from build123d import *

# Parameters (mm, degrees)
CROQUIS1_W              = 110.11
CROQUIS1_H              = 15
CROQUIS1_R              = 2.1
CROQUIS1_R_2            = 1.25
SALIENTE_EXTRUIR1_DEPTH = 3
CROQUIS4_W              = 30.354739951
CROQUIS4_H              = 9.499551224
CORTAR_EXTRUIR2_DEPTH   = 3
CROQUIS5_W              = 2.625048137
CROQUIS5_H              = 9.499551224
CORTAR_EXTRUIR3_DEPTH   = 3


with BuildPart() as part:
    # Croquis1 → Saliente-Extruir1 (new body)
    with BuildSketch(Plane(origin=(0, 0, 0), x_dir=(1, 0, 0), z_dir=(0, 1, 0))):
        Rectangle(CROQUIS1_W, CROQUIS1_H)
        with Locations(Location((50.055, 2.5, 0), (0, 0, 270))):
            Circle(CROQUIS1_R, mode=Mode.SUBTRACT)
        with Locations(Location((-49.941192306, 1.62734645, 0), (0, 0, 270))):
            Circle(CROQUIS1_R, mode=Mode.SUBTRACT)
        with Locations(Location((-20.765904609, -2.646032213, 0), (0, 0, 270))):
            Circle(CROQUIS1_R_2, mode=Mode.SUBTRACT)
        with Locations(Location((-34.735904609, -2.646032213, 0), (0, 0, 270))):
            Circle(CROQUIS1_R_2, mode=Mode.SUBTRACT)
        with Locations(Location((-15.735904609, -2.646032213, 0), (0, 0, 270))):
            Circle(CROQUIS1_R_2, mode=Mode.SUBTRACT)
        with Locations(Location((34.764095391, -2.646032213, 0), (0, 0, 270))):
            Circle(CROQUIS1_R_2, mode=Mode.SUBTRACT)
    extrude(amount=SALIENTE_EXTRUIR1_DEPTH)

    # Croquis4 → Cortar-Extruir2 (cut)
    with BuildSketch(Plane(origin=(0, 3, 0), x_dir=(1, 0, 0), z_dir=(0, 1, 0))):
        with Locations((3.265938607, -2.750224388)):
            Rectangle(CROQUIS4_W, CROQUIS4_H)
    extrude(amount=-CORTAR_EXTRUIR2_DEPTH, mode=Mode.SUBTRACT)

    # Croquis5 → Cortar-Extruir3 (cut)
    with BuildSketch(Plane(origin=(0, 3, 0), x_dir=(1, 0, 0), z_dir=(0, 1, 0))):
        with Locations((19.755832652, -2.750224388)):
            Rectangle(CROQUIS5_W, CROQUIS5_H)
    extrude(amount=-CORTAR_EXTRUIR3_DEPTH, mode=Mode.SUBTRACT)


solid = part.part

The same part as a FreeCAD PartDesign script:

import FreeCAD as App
import Part
import Sketcher

V = App.Vector

doc = App.newDocument("Part")
params = doc.addObject("Spreadsheet::Sheet", "Params")
for row, (alias, value) in enumerate([
    ("sketch1_diameter", "2.5 mm"),
    ("sketch1_diameter2", "4.2 mm"),
    ("sketch1_height", "15 mm"),
    ("sketch1_width", "110.11 mm"),
    ("pad1_length", "3 mm"),
    ("pocket1_length", "3 mm"),
    ("pocket2_length", "3 mm"),
], start=1):
    params.set(f"A{row}", alias)
    params.set(f"B{row}", "=" + value)
    params.setAlias(f"B{row}", alias)

body = doc.addObject("PartDesign::Body", "Body")

sketch1 = body.newObject("Sketcher::SketchObject", "Sketch")
sketch1.AttachmentSupport = (doc.getObject("XZ_Plane"), [""])
sketch1.MapMode = "FlatFace"
sketch1.addGeometry(Part.LineSegment(V(-55.1, -7.5, 0), V(-55.1, 7.5, 0)), False)
sketch1.addGeometry(Part.LineSegment(V(-55.1, 7.5, 0), V(55.1, 7.5, 0)), False)
sketch1.addGeometry(Part.LineSegment(V(55.1, 7.5, 0), V(55.1, -7.5, 0)), False)
sketch1.addGeometry(Part.LineSegment(V(55.1, -7.5, 0), V(-55.1, -7.5, 0)), False)
sketch1.addGeometry(Part.Circle(V(-34.7, 2.6, 0), V(0, 0, 1), 1.2), False)
sketch1.addGeometry(Part.Circle(V(-20.8, 2.6, 0), V(0, 0, 1), 1.2), False)
sketch1.addGeometry(Part.Circle(V(-15.7, 2.6, 0), V(0, 0, 1), 1.2), False)
sketch1.addGeometry(Part.Circle(V(34.8, 2.6, 0), V(0, 0, 1), 1.2), False)
sketch1.addGeometry(Part.Circle(V(-49.9, -1.6, 0), V(0, 0, 1), 2.1), False)
sketch1.addGeometry(Part.Circle(V(50.1, -2.5, 0), V(0, 0, 1), 2.1), False)
sketch1.addConstraint(Sketcher.Constraint("Coincident", 0, 2, 1, 1))
sketch1.addConstraint(Sketcher.Constraint("Coincident", 1, 2, 2, 1))
sketch1.addConstraint(Sketcher.Constraint("Coincident", 2, 2, 3, 1))
sketch1.addConstraint(Sketcher.Constraint("Coincident", 3, 2, 0, 1))
sketch1.addConstraint(Sketcher.Constraint("Vertical", 0))
sketch1.addConstraint(Sketcher.Constraint("Horizontal", 1))
sketch1.addConstraint(Sketcher.Constraint("Vertical", 2))
sketch1.addConstraint(Sketcher.Constraint("Horizontal", 3))
sketch1.addConstraint(Sketcher.Constraint("Equal", 4, 5))
sketch1.addConstraint(Sketcher.Constraint("Equal", 5, 6))
sketch1.addConstraint(Sketcher.Constraint("Equal", 6, 7))
sketch1.addConstraint(Sketcher.Constraint("Equal", 8, 9))
sketch1.addConstraint(Sketcher.Constraint("Symmetric", 0, 2, 2, 2, -1, 1))
sketch1.addConstraint(Sketcher.Constraint("Horizontal", 4, 3, 5, 3))
sketch1.addConstraint(Sketcher.Constraint("Horizontal", 5, 3, 6, 3))
sketch1.addConstraint(Sketcher.Constraint("Horizontal", 6, 3, 7, 3))
sketch1.addConstraint(Sketcher.Constraint("Diameter", 4, 2.5))
sketch1.addConstraint(Sketcher.Constraint("Diameter", 8, 4.2))
sketch1.addConstraint(Sketcher.Constraint("DistanceY", 0, 1, 0, 2, 15.0))
sketch1.addConstraint(Sketcher.Constraint("DistanceX", 4, 3, 6, 3, 19.0))
sketch1.addConstraint(Sketcher.Constraint("DistanceX", 9, 3, 1, 2, 5.0))
sketch1.addConstraint(Sketcher.Constraint("DistanceY", 9, 3, 1, 2, 10.0))
sketch1.addConstraint(Sketcher.Constraint("DistanceX", 1, 1, 1, 2, 110.11))
sketch1.addConstraint(Sketcher.Constraint("DistanceX", 6, 3, 7, 3, 50.5))
sketch1.addConstraint(Sketcher.Constraint("DistanceX", 4, 3, 5, 3, 13.97))
sketch1.addConstraint(Sketcher.Constraint("DistanceY", 8, 3, 4, 3, 4.273379))
sketch1.addConstraint(Sketcher.Constraint("DistanceX", 4, 3, -1, 1, 34.735905))
sketch1.addConstraint(Sketcher.Constraint("DistanceY", -1, 1, 4, 3, 2.646032))
sketch1.addConstraint(Sketcher.Constraint("DistanceX", 8, 3, -1, 1, 49.941192))
sketch1.setExpression("Constraints[16]", "Params.sketch1_diameter")
sketch1.setExpression("Constraints[17]", "Params.sketch1_diameter2")
sketch1.setExpression("Constraints[18]", "Params.sketch1_height")
sketch1.setExpression("Constraints[22]", "Params.sketch1_width")
pad1 = body.newObject("PartDesign::Pad", "Pad")
pad1.Profile = sketch1
pad1.setExpression("Length", "Params.pad1_length")
pad1.Reversed = True

sketch2 = body.newObject("Sketcher::SketchObject", "Sketch001")
sketch2.AttachmentSupport = (doc.getObject("XZ_Plane"), [""])
sketch2.MapMode = "FlatFace"
sketch2.AttachmentOffset = App.Placement(V(0, 0, -3), App.Rotation())
sketch2.addGeometry(Part.LineSegment(V(-12, -2, 0), V(-12, 8, 0)), False)
sketch2.addGeometry(Part.LineSegment(V(-12, 8, 0), V(18, 8, 0)), False)
sketch2.addGeometry(Part.LineSegment(V(18, 8, 0), V(18, -2, 0)), False)
sketch2.addGeometry(Part.LineSegment(V(18, -2, 0), V(-12, -2, 0)), False)
sketch2.addConstraint(Sketcher.Constraint("Coincident", 0, 2, 1, 1))
sketch2.addConstraint(Sketcher.Constraint("Coincident", 1, 2, 2, 1))
sketch2.addConstraint(Sketcher.Constraint("Coincident", 2, 2, 3, 1))
sketch2.addConstraint(Sketcher.Constraint("Coincident", 3, 2, 0, 1))
sketch2.addConstraint(Sketcher.Constraint("Vertical", 0))
sketch2.addConstraint(Sketcher.Constraint("Horizontal", 1))
sketch2.addConstraint(Sketcher.Constraint("Vertical", 2))
sketch2.addConstraint(Sketcher.Constraint("Horizontal", 3))
sketch2.addConstraint(Sketcher.Constraint("DistanceY", -1, 1, 0, 2, 7.5))
sketch2.addConstraint(Sketcher.Constraint("DistanceX", 1, 1, 1, 2, 30.35474))
sketch2.addConstraint(Sketcher.Constraint("DistanceY", 0, 1, 0, 2, 9.499551))
sketch2.addConstraint(Sketcher.Constraint("DistanceX", 0, 2, -1, 1, 11.911431))
pocket1 = body.newObject("PartDesign::Pocket", "Pocket")
pocket1.Profile = sketch2
pocket1.setExpression("Length", "Params.pocket1_length")
pocket1.Reversed = True

sketch3 = body.newObject("Sketcher::SketchObject", "Sketch002")
sketch3.AttachmentSupport = (doc.getObject("XZ_Plane"), [""])
sketch3.MapMode = "FlatFace"
sketch3.AttachmentOffset = App.Placement(V(0, 0, -3), App.Rotation())
sketch3.addGeometry(Part.LineSegment(V(18.4, -2, 0), V(18.4, 7.5, 0)), False)
sketch3.addGeometry(Part.LineSegment(V(18.4, 7.5, 0), V(21.1, 7.5, 0)), False)
sketch3.addGeometry(Part.LineSegment(V(21.1, 7.5, 0), V(21.1, -2, 0)), False)
sketch3.addGeometry(Part.LineSegment(V(21.1, -2, 0), V(18.4, -2, 0)), False)
sketch3.addConstraint(Sketcher.Constraint("Coincident", 0, 2, 1, 1))
sketch3.addConstraint(Sketcher.Constraint("Coincident", 1, 2, 2, 1))
sketch3.addConstraint(Sketcher.Constraint("Coincident", 2, 2, 3, 1))
sketch3.addConstraint(Sketcher.Constraint("Coincident", 3, 2, 0, 1))
sketch3.addConstraint(Sketcher.Constraint("Vertical", 0))
sketch3.addConstraint(Sketcher.Constraint("Horizontal", 1))
sketch3.addConstraint(Sketcher.Constraint("Vertical", 2))
sketch3.addConstraint(Sketcher.Constraint("Horizontal", 3))
sketch3.addConstraint(Sketcher.Constraint("DistanceY", -1, 1, 0, 2, 7.5))
sketch3.addConstraint(Sketcher.Constraint("DistanceX", 1, 1, 1, 2, 2.625048))
sketch3.addConstraint(Sketcher.Constraint("DistanceY", 0, 1, 0, 2, 9.499551))
sketch3.addConstraint(Sketcher.Constraint("DistanceX", -1, 1, 0, 2, 18.443309))
pocket2 = body.newObject("PartDesign::Pocket", "Pocket001")
pocket2.Profile = sketch3
pocket2.setExpression("Length", "Params.pocket2_length")
pocket2.Reversed = True

doc.recompute()
